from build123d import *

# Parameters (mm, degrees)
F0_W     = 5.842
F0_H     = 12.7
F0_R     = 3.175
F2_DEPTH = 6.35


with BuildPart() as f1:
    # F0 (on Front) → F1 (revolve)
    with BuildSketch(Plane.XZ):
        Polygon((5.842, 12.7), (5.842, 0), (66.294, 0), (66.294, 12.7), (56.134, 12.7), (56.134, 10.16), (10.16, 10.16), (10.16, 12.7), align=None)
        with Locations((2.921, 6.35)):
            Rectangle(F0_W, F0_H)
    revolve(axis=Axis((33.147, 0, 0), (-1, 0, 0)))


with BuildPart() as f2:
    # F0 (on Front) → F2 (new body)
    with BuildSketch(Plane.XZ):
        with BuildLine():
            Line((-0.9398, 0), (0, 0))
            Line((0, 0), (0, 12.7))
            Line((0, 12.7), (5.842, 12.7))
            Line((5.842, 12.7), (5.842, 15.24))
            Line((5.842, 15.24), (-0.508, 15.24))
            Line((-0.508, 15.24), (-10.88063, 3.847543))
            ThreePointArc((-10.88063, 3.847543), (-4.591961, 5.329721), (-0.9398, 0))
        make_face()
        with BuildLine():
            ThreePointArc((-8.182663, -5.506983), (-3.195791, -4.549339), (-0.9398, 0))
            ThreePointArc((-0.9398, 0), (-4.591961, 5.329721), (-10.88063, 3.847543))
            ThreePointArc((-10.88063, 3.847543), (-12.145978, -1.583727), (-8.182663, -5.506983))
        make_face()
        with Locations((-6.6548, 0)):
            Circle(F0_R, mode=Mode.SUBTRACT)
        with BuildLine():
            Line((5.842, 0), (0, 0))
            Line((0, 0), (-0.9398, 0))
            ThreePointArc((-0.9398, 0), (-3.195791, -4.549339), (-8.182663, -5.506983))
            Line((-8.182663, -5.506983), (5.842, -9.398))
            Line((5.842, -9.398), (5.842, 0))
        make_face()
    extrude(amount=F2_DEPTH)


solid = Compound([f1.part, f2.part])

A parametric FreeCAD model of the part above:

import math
import FreeCAD as App
import Part
import Sketcher
Q = App.Units.Quantity

doc = App.newDocument("Part")
body = doc.addObject("PartDesign::Body", "Body")

sketch1 = body.newObject("Sketcher::SketchObject", "Sketch")
sketch1.AttachmentSupport = (doc.getObject("XZ_Plane"), [""])
sketch1.MapMode = "FlatFace"
sketch1.addGeometry(Part.LineSegment(App.Vector(66.3, 0, 0), App.Vector(66.3, 12.7, 0)), False)
sketch1.addGeometry(Part.LineSegment(App.Vector(66.3, 12.7, 0), App.Vector(56.1, 12.7, 0)), False)
sketch1.addGeometry(Part.LineSegment(App.Vector(56.1, 12.7, 0), App.Vector(56.1, 10.2, 0)), False)
sketch1.addGeometry(Part.LineSegment(App.Vector(56.1, 10.2, 0), App.Vector(10.2, 10.2, 0)), False)
sketch1.addGeometry(Part.LineSegment(App.Vector(10.2, 10.2, 0), App.Vector(10.2, 12.7, 0)), False)
sketch1.addGeometry(Part.LineSegment(App.Vector(10.2, 12.7, 0), App.Vector(0, 12.7, 0)), False)
sketch1.addGeometry(Part.LineSegment(App.Vector(0, 12.7, 0), App.Vector(0, 0, 0)), False)
sketch1.addGeometry(Part.LineSegment(App.Vector(0, 0, 0), App.Vector(66.3, 0, 0)), False)
sketch1.addConstraint(Sketcher.Constraint("Coincident", 0, 2, 1, 1))
sketch1.addConstraint(Sketcher.Constraint("Coincident", 1, 2, 2, 1))
sketch1.addConstraint(Sketcher.Constraint("Coincident", 2, 2, 3, 1))
sketch1.addConstraint(Sketcher.Constraint("Coincident", 3, 2, 4, 1))
sketch1.addConstraint(Sketcher.Constraint("Coincident", 4, 2, 5, 1))
sketch1.addConstraint(Sketcher.Constraint("Coincident", 5, 2, 6, 1))
sketch1.addConstraint(Sketcher.Constraint("Coincident", 6, 2, 7, 1))
sketch1.addConstraint(Sketcher.Constraint("Coincident", 7, 2, 0, 1))
sketch1.addConstraint(Sketcher.Constraint("Vertical", 0))
sketch1.addConstraint(Sketcher.Constraint("Horizontal", 1))
sketch1.addConstraint(Sketcher.Constraint("Vertical", 2))
sketch1.addConstraint(Sketcher.Constraint("Horizontal", 3))
sketch1.addConstraint(Sketcher.Constraint("Vertical", 4))
sketch1.addConstraint(Sketcher.Constraint("Horizontal", 5))
sketch1.addConstraint(Sketcher.Constraint("Vertical", 6))
sketch1.addConstraint(Sketcher.Constraint("Horizontal", 7))
sketch1.addConstraint(Sketcher.Constraint("Coincident", 6, 2, -1, 1))
sketch1.addConstraint(Sketcher.Constraint("Horizontal", 1, 2, 4, 2))
sketch1.addConstraint(Sketcher.Constraint("Equal", 1, 5))
sketch1.addConstraint(Sketcher.Constraint("DistanceX", 1, 2, 1, 1, Q("0.4 in")))
sketch1.addConstraint(Sketcher.Constraint("DistanceY", 0, 1, 0, 2, Q("0.5 in")))
sketch1.addConstraint(Sketcher.Constraint("DistanceY", 2, 2, 2, 1, Q("0.1 in")))
sketch1.addConstraint(Sketcher.Constraint("DistanceX", 3, 2, 3, 1, Q("1.81 in")))
revolution = body.newObject("PartDesign::Revolution", "Revolution")
revolution.Profile = sketch1
revolution.ReferenceAxis = (sketch1, ["H_Axis"])
revolution.Angle = 360
body2 = doc.addObject("PartDesign::Body", "Body001")

sketch2 = body2.newObject("Sketcher::SketchObject", "Sketch001")
sketch2.AttachmentSupport = (doc.getObject("XZ_Plane001"), [""])
sketch2.MapMode = "FlatFace"
sketch2.addGeometry(Part.LineSegment(App.Vector(0, 0, 0), App.Vector(0, 12.7, 0)), False)
sketch2.addGeometry(Part.LineSegment(App.Vector(0, 12.7, 0), App.Vector(5.8, 12.7, 0)), False)
sketch2.addGeometry(Part.LineSegment(App.Vector(5.8, 12.7, 0), App.Vector(5.8, 15.2, 0)), False)
sketch2.addGeometry(Part.LineSegment(App.Vector(5.8, 15.2, 0), App.Vector(-0.5, 15.2, 0)), False)
sketch2.addGeometry(Part.LineSegment(App.Vector(-0.5, 15.2, 0), App.Vector(-10.9, 3.8, 0)), False)
sketch2.addGeometry(Part.ArcOfCircle(Part.Circle(App.Vector(-6.7, 0, 0), App.Vector(0, 0, 1), 5.7), math.radians(138), math.radians(254)), False)
sketch2.addGeometry(Part.LineSegment(App.Vector(-8.2, -5.5, 0), App.Vector(5.8, -9.4, 0)), False)
sketch2.addGeometry(Part.LineSegment(App.Vector(5.8, -9.4, 0), App.Vector(5.8, 0, 0)), False)
sketch2.addGeometry(Part.LineSegment(App.Vector(5.8, 0, 0), App.Vector(0, 0, 0)), False)
sketch2.addGeometry(Part.Circle(App.Vector(-6.7, 0, 0), App.Vector(0, 0, 1), 3.2), False)
sketch2.addConstraint(Sketcher.Constraint("Coincident", 0, 2, 1, 1))
sketch2.addConstraint(Sketcher.Constraint("Coincident", 1, 2, 2, 1))
sketch2.addConstraint(Sketcher.Constraint("Coincident", 2, 2, 3, 1))
sketch2.addConstraint(Sketcher.Constraint("Coincident", 3, 2, 4, 1))
sketch2.addConstraint(Sketcher.Constraint("Tangent", 4, 2, 5, 1))
sketch2.addConstraint(Sketcher.Constraint("Tangent", 5, 2, 6, 1))
sketch2.addConstraint(Sketcher.Constraint("Coincident", 6, 2, 7, 1))
sketch2.addConstraint(Sketcher.Constraint("Coincident", 7, 2, 8, 1))
sketch2.addConstraint(Sketcher.Constraint("Coincident", 8, 2, 0, 1))
sketch2.addConstraint(Sketcher.Constraint("Vertical", 0))
sketch2.addConstraint(Sketcher.Constraint("Horizontal", 1))
sketch2.addConstraint(Sketcher.Constraint("Vertical", 2))
sketch2.addConstraint(Sketcher.Constraint("Horizontal", 3))
sketch2.addConstraint(Sketcher.Constraint("Vertical", 7))
sketch2.addConstraint(Sketcher.Constraint("Horizontal", 8))
sketch2.addConstraint(Sketcher.Constraint("Coincident", 8, 2, -1, 1))
sketch2.addConstraint(Sketcher.Constraint("Coincident", 9, 3, 5, 3))
sketch2.addConstraint(Sketcher.Constraint("PointOnObject", 5, 3, -1))
sketch2.addConstraint(Sketcher.Constraint("Vertical", 2, 2, 6, 2))
sketch2.addConstraint(Sketcher.Constraint("Diameter", 9, Q("0.25 in")))
sketch2.addConstraint(Sketcher.Constraint("DistanceY", 0, 1, 0, 2, Q("0.5 in")))
sketch2.addConstraint(Sketcher.Constraint("DistanceY", 2, 1, 2, 2, Q("0.1 in")))
sketch2.addConstraint(Sketcher.Constraint("Radius", 5, Q("0.225 in")))
sketch2.addConstraint(Sketcher.Constraint("DistanceX", 1, 1, 1, 2, Q("0.23 in")))
sketch2.addConstraint(Sketcher.Constraint("DistanceX", 3, 2, 3, 1, Q("0.25 in")))
sketch2.addConstraint(Sketcher.Constraint("DistanceY", 7, 1, 7, 2, Q("0.37 in")))
sketch2.addConstraint(Sketcher.Constraint("DistanceX", 5, 3, -1, 1, Q("0.262 in")))
pad1 = body2.newObject("PartDesign::Pad", "Pad")
pad1.Profile = sketch2
pad1.Length = Q("0.25 in")

doc.recompute()
